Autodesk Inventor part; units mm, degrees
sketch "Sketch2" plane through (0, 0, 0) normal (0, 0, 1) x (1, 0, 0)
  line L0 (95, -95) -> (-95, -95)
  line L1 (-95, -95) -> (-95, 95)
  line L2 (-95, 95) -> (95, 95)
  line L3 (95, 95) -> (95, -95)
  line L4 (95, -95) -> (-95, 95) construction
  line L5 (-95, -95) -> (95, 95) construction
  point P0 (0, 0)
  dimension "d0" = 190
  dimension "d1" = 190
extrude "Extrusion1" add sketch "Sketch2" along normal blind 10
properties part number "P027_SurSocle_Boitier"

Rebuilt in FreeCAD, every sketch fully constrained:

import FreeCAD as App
import Part
import Sketcher
Q = App.Units.Quantity


def add_polygon(sketch, points):
    """Adds a closed chain of lines whose ends are joined by coincident constraints."""
    first, n = sketch.GeometryCount, len(points)
    for a, b in zip(points, points[1:] + points[:1]):
        sketch.addGeometry(Part.LineSegment(App.Vector(*a, 0), App.Vector(*b, 0)), False)
    for i in range(n):
        sketch.addConstraint(Sketcher.Constraint("Coincident", first + i, 2, first + (i + 1) % n, 1))

doc = App.newDocument("Part")
body = doc.addObject("PartDesign::Body", "Body")

sketch1 = doc.addObject("Sketcher::SketchObject", "Sketch")
body.addObject(sketch1)
sketch1.AttachmentSupport = (doc.XY_Plane, [""])
sketch1.MapMode = "FlatFace"
add_polygon(sketch1, [(-95, -95), (95, -95), (95, 95), (-95, 95)])
sketch1.addConstraint(Sketcher.Constraint("Horizontal", 0))
sketch1.addConstraint(Sketcher.Constraint("Vertical", 1))
sketch1.addConstraint(Sketcher.Constraint("Horizontal", 2))
sketch1.addConstraint(Sketcher.Constraint("Vertical", 3))
sketch1.addConstraint(Sketcher.Constraint("Symmetric", 0, 2, 2, 2, -1, 1))
sketch1.addConstraint(Sketcher.Constraint("Equal", 2, 1))
sketch1.addConstraint(Sketcher.Constraint("DistanceX", 0, 1, 0, 2, Q("190 mm")))
pad1 = doc.addObject("PartDesign::Pad", "Pad")
body.addObject(pad1)
pad1.Profile = sketch1
pad1.Length = 10

doc.recompute()
